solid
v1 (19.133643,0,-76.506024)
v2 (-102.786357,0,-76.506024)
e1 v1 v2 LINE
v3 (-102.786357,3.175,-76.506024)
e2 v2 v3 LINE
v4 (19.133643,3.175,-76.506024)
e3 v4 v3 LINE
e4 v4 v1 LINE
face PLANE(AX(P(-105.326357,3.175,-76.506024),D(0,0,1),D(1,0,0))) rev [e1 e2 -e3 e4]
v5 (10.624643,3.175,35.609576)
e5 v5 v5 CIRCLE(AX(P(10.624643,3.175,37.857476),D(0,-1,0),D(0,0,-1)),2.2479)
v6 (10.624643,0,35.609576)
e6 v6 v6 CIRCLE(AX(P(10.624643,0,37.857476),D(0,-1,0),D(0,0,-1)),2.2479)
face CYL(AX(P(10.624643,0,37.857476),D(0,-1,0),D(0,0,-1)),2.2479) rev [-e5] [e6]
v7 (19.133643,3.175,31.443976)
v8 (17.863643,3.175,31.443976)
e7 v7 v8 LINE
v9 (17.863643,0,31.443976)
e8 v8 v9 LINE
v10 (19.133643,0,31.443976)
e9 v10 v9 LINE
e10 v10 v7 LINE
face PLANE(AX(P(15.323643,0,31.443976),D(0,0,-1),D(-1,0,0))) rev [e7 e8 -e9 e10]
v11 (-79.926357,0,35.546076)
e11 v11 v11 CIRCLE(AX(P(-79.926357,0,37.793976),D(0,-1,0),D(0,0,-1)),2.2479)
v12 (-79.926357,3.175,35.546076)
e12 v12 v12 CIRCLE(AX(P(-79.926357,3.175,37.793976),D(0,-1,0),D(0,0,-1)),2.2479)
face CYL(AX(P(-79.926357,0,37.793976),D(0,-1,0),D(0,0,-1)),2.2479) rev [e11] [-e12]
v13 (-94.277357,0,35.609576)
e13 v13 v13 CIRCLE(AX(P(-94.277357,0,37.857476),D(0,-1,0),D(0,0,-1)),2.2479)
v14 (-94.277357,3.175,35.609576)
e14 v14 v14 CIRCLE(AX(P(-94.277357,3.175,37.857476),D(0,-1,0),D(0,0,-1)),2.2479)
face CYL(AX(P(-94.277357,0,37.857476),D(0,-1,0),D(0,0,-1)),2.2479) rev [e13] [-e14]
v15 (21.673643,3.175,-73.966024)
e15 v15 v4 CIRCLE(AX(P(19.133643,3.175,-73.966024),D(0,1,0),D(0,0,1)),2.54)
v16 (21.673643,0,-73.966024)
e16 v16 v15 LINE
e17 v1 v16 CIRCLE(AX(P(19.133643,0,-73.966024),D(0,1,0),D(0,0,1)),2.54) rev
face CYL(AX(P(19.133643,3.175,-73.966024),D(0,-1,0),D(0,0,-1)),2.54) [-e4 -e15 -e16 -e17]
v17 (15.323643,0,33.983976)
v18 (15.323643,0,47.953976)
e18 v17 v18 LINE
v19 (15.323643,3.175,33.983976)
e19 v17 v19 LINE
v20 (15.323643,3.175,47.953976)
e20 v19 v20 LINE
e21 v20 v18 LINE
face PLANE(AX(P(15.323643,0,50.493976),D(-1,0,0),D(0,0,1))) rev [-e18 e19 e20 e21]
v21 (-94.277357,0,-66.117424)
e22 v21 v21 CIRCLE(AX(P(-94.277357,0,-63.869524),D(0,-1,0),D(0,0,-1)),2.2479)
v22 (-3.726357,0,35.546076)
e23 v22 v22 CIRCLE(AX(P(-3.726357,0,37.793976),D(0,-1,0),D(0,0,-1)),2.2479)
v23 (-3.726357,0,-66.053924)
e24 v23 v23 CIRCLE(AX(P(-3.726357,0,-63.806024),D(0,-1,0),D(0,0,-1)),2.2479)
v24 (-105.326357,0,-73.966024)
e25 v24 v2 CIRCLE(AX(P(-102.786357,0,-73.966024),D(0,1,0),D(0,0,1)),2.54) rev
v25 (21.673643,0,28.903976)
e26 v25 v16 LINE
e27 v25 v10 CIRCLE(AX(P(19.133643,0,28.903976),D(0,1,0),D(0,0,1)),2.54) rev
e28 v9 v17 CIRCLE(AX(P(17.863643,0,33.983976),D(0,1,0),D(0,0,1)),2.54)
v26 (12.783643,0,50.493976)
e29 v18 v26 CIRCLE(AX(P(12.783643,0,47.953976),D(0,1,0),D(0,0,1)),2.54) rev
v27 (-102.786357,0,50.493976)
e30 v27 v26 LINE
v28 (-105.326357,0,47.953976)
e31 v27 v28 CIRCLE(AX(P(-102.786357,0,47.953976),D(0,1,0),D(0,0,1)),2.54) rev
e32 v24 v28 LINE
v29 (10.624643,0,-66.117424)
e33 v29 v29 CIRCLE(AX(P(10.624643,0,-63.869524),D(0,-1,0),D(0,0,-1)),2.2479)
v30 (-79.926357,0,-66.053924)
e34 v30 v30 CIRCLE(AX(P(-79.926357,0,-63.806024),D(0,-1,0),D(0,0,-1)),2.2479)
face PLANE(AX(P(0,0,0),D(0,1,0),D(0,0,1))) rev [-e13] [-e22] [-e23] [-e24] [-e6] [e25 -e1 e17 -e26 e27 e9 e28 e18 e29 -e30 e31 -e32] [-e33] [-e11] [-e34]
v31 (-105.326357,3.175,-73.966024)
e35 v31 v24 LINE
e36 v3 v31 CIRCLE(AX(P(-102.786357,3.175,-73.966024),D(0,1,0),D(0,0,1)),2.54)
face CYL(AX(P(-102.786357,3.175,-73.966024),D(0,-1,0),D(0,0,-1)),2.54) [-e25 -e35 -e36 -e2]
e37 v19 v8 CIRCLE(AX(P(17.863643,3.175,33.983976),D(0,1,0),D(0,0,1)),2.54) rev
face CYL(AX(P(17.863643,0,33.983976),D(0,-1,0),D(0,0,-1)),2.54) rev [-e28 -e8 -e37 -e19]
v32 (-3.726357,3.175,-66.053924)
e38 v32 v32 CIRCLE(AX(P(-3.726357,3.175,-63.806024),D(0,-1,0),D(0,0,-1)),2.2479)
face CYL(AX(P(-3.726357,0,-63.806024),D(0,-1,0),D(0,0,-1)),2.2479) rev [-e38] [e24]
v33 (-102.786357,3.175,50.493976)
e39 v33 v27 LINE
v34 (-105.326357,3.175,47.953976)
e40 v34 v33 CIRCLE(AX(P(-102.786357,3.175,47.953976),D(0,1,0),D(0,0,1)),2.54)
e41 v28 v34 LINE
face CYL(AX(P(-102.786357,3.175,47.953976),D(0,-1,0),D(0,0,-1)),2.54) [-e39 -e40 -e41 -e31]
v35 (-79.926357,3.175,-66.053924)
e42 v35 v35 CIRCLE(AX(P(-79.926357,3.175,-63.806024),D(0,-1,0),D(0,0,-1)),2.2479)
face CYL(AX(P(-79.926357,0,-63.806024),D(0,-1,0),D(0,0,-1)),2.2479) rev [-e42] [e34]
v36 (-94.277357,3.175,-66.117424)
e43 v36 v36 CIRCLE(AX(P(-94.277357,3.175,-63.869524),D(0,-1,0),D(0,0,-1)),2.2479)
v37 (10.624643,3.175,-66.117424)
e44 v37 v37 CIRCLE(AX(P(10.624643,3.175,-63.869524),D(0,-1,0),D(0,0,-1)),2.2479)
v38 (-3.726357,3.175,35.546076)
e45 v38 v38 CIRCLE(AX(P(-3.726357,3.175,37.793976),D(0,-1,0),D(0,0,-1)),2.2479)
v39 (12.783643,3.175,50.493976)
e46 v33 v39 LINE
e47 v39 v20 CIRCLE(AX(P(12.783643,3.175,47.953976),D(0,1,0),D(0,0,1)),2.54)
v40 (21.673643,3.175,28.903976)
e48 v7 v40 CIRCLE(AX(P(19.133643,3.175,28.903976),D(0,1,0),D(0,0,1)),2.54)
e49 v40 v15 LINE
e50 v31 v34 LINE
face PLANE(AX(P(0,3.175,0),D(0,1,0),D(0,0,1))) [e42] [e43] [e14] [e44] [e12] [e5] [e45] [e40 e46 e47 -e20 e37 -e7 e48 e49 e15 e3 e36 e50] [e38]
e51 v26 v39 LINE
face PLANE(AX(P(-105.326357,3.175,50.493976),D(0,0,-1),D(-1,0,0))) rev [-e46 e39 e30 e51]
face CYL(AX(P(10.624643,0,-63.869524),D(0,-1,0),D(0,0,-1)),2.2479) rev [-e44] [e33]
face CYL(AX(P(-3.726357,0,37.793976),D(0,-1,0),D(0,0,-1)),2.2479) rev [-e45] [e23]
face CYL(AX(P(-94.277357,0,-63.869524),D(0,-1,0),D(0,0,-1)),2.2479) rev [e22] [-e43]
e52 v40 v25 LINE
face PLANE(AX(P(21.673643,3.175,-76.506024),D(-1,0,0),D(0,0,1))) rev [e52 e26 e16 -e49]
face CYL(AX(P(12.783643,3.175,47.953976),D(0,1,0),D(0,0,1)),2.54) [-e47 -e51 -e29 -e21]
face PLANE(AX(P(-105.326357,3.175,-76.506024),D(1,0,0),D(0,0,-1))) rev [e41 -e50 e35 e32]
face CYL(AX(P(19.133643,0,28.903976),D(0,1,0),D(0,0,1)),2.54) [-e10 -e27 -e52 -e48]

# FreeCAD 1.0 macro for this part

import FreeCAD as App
import Part
import Sketcher

V = App.Vector
Q = App.Units.Quantity


def edges_at(feature, points):
    """Names of the edges that pass closest to the given points."""
    edges = feature.Shape.Edges
    near = lambda p: min(range(len(edges)), key=lambda i: edges[i].distToShape(Part.Vertex(*p))[0])
    return sorted({f"Edge{near(p) + 1}" for p in points})

doc = App.newDocument("Part")
params = doc.addObject("Spreadsheet::Sheet", "Params")
for row, (alias, value) in enumerate([
    ("sketch1_width", "5 in"),
    ("pad1_length", "0.125 in"),
    ("sketch2_diameter", "0.177 in"),
    ("hole_diameter", "0.177 in"),
    ("sketch3_diameter", "0.177 in"),
    ("hole2_diameter", "0.177 in"),
    ("sketch4_width", "0.25 in"),
    ("sketch4_height", "0.75 in"),
    ("fillet_radius", "0.1 in"),
], start=1):
    params.set(f"A{row}", alias)
    params.set(f"B{row}", "=" + value)
    params.setAlias(f"B{row}", alias)

body = doc.addObject("PartDesign::Body", "Body")

sketch1 = body.newObject("Sketcher::SketchObject", "Sketch")
sketch1.AttachmentSupport = (doc.getObject("XZ_Plane"), [""])
sketch1.MapMode = "FlatFace"
sketch1.addGeometry([
    Part.LineSegment(V(-105, -77, 0), V(-105, 50, 0)),
    Part.LineSegment(V(-105, 50, 0), V(22, 50, 0)),
    Part.LineSegment(V(22, 50, 0), V(22, -77, 0)),
    Part.LineSegment(V(22, -77, 0), V(-105, -77, 0)),
], False)
sketch1.addConstraint([
    Sketcher.Constraint("Coincident", 0, 2, 1, 1),
    Sketcher.Constraint("Coincident", 1, 2, 2, 1),
    Sketcher.Constraint("Coincident", 2, 2, 3, 1),
    Sketcher.Constraint("Coincident", 3, 2, 0, 1),
    Sketcher.Constraint("Vertical", 0),
    Sketcher.Constraint("Horizontal", 1),
    Sketcher.Constraint("Vertical", 2),
    Sketcher.Constraint("Horizontal", 3),
    Sketcher.Constraint("Equal", 3, 0),
    Sketcher.Constraint("DistanceX", 1, 1, 1, 2, Q("5 in")),
    Sketcher.Constraint("DistanceX", 0, 2, -1, 1, 105.326357),
    Sketcher.Constraint("DistanceY", -1, 1, 0, 2, 50.493976),
])
sketch1.setExpression("Constraints[9]", "Params.sketch1_width")
pad1 = body.newObject("PartDesign::Pad", "Pad")
pad1.Profile = sketch1
pad1.setExpression("Length", "Params.pad1_length")
pad1.Reversed = True

sketch2 = body.newObject("Sketcher::SketchObject", "Sketch001")
sketch2.AttachmentSupport = (doc.getObject("XZ_Plane"), [""])
sketch2.MapMode = "FlatFace"
sketch2.addGeometry([
    Part.Circle(V(-3.7, -63.8, 0), V(0, 0, 1), 2.2),
    Part.Circle(V(-79.9, 37.8, 0), V(0, 0, 1), 2.2),
    Part.Circle(V(-79.9, -63.8, 0), V(0, 0, 1), 2.2),
    Part.Circle(V(-3.7, 37.8, 0), V(0, 0, 1), 2.2),
], False)
sketch2.addConstraint([
    Sketcher.Constraint("Equal", 0, 1),
    Sketcher.Constraint("Equal", 1, 2),
    Sketcher.Constraint("Equal", 2, 3),
    Sketcher.Constraint("Horizontal", 0, 3, 2, 3),
    Sketcher.Constraint("Horizontal", 1, 3, 3, 3),
    Sketcher.Constraint("Vertical", 1, 3, 2, 3),
    Sketcher.Constraint("Vertical", 0, 3, 3, 3),
    Sketcher.Constraint("Diameter", 0, Q("0.177 in")),
    Sketcher.Constraint("DistanceX", 1, 3, 0, 3, Q("3 in")),
    Sketcher.Constraint("DistanceY", 0, 3, 1, 3, Q("4 in")),
    Sketcher.Constraint("DistanceX", 0, 3, -1, 1, 3.726357),
    Sketcher.Constraint("DistanceY", 0, 3, -1, 1, 63.806024),
])
sketch2.setExpression("Constraints[7]", "Params.sketch2_diameter")
doc.recompute()
hole = body.newObject("PartDesign::Hole", "Hole")
hole.Profile = sketch2
hole.ThreadType = "None"
hole.setExpression("Diameter", "Params.hole_diameter")
hole.DepthType = "ThroughAll"

sketch3 = body.newObject("Sketcher::SketchObject", "Sketch002")
sketch3.AttachmentSupport = (doc.getObject("XZ_Plane"), [""])
sketch3.MapMode = "FlatFace"
sketch3.addGeometry([
    Part.Circle(V(10.6, -63.9, 0), V(0, 0, 1), 2.2),
    Part.Circle(V(-94.3, 37.9, 0), V(0, 0, 1), 2.2),
    Part.Circle(V(-94.3, -63.9, 0), V(0, 0, 1), 2.2),
    Part.Circle(V(10.6, 37.9, 0), V(0, 0, 1), 2.2),
], False)
sketch3.addConstraint([
    Sketcher.Constraint("Equal", 0, 1),
    Sketcher.Constraint("Equal", 1, 2),
    Sketcher.Constraint("Equal", 2, 3),
    Sketcher.Constraint("Horizontal", 0, 3, 2, 3),
    Sketcher.Constraint("Horizontal", 1, 3, 3, 3),
    Sketcher.Constraint("Vertical", 1, 3, 2, 3),
    Sketcher.Constraint("Vertical", 0, 3, 3, 3),
    Sketcher.Constraint("Diameter", 0, Q("0.177 in")),
    Sketcher.Constraint("DistanceX", 1, 3, 0, 3, Q("4.13 in")),
    Sketcher.Constraint("DistanceY", 0, 3, 1, 3, Q("4.005 in")),
    Sketcher.Constraint("DistanceX", -1, 1, 0, 3, 10.624643),
    Sketcher.Constraint("DistanceY", 0, 3, -1, 1, 63.869524),
])
sketch3.setExpression("Constraints[7]", "Params.sketch3_diameter")
doc.recompute()
hole2 = body.newObject("PartDesign::Hole", "Hole001")
hole2.Profile = sketch3
hole2.ThreadType = "None"
hole2.setExpression("Diameter", "Params.hole2_diameter")
hole2.DepthType = "ThroughAll"

sketch4 = body.newObject("Sketcher::SketchObject", "Sketch003")
sketch4.AttachmentSupport = (doc.getObject("XZ_Plane"), [""])
sketch4.MapMode = "FlatFace"
sketch4.AttachmentOffset = App.Placement(V(0, 0, -0.125 * 25.4), App.Rotation())
sketch4.addGeometry([
    Part.LineSegment(V(15, 31, 0), V(15, 50, 0)),
    Part.LineSegment(V(15, 50, 0), V(22, 50, 0)),
    Part.LineSegment(V(22, 50, 0), V(22, 31, 0)),
    Part.LineSegment(V(22, 31, 0), V(15, 31, 0)),
], False)
sketch4.addConstraint([
    Sketcher.Constraint("Coincident", 0, 2, 1, 1),
    Sketcher.Constraint("Coincident", 1, 2, 2, 1),
    Sketcher.Constraint("Coincident", 2, 2, 3, 1),
    Sketcher.Constraint("Coincident", 3, 2, 0, 1),
    Sketcher.Constraint("Vertical", 0),
    Sketcher.Constraint("Horizontal", 1),
    Sketcher.Constraint("Vertical", 2),
    Sketcher.Constraint("Horizontal", 3),
    Sketcher.Constraint("DistanceX", 1, 1, 1, 2, Q("0.25 in")),
    Sketcher.Constraint("DistanceY", 0, 1, 0, 2, Q("0.75 in")),
    Sketcher.Constraint("DistanceX", -1, 1, 0, 2, 15.323643),
    Sketcher.Constraint("DistanceY", -1, 1, 0, 2, 50.493976),
])
sketch4.setExpression("Constraints[8]", "Params.sketch4_width")
sketch4.setExpression("Constraints[9]", "Params.sketch4_height")
pocket1 = body.newObject("PartDesign::Pocket", "Pocket")
pocket1.Profile = sketch4
pocket1.Type = "ThroughAll"
pocket1.Reversed = True
doc.recompute()

fillet = body.newObject("PartDesign::Fillet", "Fillet")
fillet.Base = (pocket1, edges_at(pocket1, [
    (15.324, 1.587, 50.494),
    (15.324, 1.587, 31.444),
    (21.674, 1.587, 31.444),
    (-105.326, 1.587, 50.494),
    (-105.326, 1.587, -76.506),
    (21.674, 1.587, -76.506),
]))
fillet.setExpression("Radius", "Params.fillet_radius")

doc.recompute()
